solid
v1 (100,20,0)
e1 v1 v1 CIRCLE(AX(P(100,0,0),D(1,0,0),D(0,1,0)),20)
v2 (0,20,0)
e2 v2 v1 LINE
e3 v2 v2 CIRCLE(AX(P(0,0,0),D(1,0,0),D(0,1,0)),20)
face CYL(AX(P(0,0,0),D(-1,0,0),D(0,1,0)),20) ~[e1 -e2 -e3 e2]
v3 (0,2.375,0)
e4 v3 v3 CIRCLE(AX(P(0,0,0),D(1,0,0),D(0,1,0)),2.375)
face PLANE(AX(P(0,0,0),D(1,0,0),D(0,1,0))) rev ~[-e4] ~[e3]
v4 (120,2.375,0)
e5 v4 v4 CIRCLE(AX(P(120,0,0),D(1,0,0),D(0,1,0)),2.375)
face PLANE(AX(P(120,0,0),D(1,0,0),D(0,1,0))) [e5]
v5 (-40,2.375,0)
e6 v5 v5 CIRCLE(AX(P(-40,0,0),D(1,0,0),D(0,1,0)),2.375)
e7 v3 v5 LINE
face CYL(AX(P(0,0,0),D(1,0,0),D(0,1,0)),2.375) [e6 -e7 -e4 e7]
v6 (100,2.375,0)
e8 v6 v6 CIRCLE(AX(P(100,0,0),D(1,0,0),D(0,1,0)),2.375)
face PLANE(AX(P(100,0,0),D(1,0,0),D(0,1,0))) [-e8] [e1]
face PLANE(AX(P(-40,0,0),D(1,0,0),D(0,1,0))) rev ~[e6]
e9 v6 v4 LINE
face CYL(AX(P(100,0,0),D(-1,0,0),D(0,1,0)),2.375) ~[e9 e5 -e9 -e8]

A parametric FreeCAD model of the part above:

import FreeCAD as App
import Part
import Sketcher
from FreeCAD import Vector

doc = App.newDocument("Part")
params = doc.addObject("Spreadsheet::Sheet", "Params")
for row, (alias, value) in enumerate([
    ("sketch1_diameter", "40 mm"),
    ("pad1_length", "100 mm"),
    ("sketch2_diameter", "4.75 mm"),
    ("pad2_length", "20 mm"),
    ("sketch3_diameter", "4.75 mm"),
    ("pad3_length", "40 mm"),
], start=1):
    params.set(f"A{row}", alias)
    params.set(f"B{row}", "=" + value)
    params.setAlias(f"B{row}", alias)

body = doc.addObject("PartDesign::Body", "Body")

sketch1 = body.newObject("Sketcher::SketchObject", "Sketch")
sketch1.AttachmentSupport = (doc.getObject("YZ_Plane"), [""])
sketch1.MapMode = "FlatFace"
sketch1.addGeometry(Part.Circle(Vector(0, 0, 0), Vector(0, 0, 1), 20), False)
sketch1.addConstraint(Sketcher.Constraint("Coincident", 0, 3, -1, 1))
sketch1.addConstraint(Sketcher.Constraint("Diameter", 0, 40.0))
sketch1.setExpression("Constraints[1]", "Params.sketch1_diameter")
pad1 = body.newObject("PartDesign::Pad", "Pad")
pad1.Profile = sketch1
pad1.setExpression("Length", "Params.pad1_length")

sketch2 = body.newObject("Sketcher::SketchObject", "Sketch001")
sketch2.AttachmentSupport = (doc.getObject("YZ_Plane"), [""])
sketch2.MapMode = "FlatFace"
sketch2.AttachmentOffset = App.Placement(Vector(0, 0, 100), App.Rotation())
sketch2.addGeometry(Part.Circle(Vector(0, 0, 0), Vector(0, 0, 1), 2.375), False)
sketch2.addConstraint(Sketcher.Constraint("Coincident", 0, 3, -1, 1))
sketch2.addConstraint(Sketcher.Constraint("Diameter", 0, 4.75))
sketch2.setExpression("Constraints[1]", "Params.sketch2_diameter")
pad2 = body.newObject("PartDesign::Pad", "Pad001")
pad2.Profile = sketch2
pad2.setExpression("Length", "Params.pad2_length")

sketch3 = body.newObject("Sketcher::SketchObject", "Sketch002")
sketch3.AttachmentSupport = (doc.getObject("YZ_Plane"), [""])
sketch3.MapMode = "FlatFace"
sketch3.addGeometry(Part.Circle(Vector(0, 0, 0), Vector(0, 0, 1), 2.375), False)
sketch3.addConstraint(Sketcher.Constraint("Coincident", 0, 3, -1, 1))
sketch3.addConstraint(Sketcher.Constraint("Diameter", 0, 4.75))
sketch3.setExpression("Constraints[1]", "Params.sketch3_diameter")
pad3 = body.newObject("PartDesign::Pad", "Pad002")
pad3.Profile = sketch3
pad3.setExpression("Length", "Params.pad3_length")
pad3.Reversed = True

doc.recompute()
